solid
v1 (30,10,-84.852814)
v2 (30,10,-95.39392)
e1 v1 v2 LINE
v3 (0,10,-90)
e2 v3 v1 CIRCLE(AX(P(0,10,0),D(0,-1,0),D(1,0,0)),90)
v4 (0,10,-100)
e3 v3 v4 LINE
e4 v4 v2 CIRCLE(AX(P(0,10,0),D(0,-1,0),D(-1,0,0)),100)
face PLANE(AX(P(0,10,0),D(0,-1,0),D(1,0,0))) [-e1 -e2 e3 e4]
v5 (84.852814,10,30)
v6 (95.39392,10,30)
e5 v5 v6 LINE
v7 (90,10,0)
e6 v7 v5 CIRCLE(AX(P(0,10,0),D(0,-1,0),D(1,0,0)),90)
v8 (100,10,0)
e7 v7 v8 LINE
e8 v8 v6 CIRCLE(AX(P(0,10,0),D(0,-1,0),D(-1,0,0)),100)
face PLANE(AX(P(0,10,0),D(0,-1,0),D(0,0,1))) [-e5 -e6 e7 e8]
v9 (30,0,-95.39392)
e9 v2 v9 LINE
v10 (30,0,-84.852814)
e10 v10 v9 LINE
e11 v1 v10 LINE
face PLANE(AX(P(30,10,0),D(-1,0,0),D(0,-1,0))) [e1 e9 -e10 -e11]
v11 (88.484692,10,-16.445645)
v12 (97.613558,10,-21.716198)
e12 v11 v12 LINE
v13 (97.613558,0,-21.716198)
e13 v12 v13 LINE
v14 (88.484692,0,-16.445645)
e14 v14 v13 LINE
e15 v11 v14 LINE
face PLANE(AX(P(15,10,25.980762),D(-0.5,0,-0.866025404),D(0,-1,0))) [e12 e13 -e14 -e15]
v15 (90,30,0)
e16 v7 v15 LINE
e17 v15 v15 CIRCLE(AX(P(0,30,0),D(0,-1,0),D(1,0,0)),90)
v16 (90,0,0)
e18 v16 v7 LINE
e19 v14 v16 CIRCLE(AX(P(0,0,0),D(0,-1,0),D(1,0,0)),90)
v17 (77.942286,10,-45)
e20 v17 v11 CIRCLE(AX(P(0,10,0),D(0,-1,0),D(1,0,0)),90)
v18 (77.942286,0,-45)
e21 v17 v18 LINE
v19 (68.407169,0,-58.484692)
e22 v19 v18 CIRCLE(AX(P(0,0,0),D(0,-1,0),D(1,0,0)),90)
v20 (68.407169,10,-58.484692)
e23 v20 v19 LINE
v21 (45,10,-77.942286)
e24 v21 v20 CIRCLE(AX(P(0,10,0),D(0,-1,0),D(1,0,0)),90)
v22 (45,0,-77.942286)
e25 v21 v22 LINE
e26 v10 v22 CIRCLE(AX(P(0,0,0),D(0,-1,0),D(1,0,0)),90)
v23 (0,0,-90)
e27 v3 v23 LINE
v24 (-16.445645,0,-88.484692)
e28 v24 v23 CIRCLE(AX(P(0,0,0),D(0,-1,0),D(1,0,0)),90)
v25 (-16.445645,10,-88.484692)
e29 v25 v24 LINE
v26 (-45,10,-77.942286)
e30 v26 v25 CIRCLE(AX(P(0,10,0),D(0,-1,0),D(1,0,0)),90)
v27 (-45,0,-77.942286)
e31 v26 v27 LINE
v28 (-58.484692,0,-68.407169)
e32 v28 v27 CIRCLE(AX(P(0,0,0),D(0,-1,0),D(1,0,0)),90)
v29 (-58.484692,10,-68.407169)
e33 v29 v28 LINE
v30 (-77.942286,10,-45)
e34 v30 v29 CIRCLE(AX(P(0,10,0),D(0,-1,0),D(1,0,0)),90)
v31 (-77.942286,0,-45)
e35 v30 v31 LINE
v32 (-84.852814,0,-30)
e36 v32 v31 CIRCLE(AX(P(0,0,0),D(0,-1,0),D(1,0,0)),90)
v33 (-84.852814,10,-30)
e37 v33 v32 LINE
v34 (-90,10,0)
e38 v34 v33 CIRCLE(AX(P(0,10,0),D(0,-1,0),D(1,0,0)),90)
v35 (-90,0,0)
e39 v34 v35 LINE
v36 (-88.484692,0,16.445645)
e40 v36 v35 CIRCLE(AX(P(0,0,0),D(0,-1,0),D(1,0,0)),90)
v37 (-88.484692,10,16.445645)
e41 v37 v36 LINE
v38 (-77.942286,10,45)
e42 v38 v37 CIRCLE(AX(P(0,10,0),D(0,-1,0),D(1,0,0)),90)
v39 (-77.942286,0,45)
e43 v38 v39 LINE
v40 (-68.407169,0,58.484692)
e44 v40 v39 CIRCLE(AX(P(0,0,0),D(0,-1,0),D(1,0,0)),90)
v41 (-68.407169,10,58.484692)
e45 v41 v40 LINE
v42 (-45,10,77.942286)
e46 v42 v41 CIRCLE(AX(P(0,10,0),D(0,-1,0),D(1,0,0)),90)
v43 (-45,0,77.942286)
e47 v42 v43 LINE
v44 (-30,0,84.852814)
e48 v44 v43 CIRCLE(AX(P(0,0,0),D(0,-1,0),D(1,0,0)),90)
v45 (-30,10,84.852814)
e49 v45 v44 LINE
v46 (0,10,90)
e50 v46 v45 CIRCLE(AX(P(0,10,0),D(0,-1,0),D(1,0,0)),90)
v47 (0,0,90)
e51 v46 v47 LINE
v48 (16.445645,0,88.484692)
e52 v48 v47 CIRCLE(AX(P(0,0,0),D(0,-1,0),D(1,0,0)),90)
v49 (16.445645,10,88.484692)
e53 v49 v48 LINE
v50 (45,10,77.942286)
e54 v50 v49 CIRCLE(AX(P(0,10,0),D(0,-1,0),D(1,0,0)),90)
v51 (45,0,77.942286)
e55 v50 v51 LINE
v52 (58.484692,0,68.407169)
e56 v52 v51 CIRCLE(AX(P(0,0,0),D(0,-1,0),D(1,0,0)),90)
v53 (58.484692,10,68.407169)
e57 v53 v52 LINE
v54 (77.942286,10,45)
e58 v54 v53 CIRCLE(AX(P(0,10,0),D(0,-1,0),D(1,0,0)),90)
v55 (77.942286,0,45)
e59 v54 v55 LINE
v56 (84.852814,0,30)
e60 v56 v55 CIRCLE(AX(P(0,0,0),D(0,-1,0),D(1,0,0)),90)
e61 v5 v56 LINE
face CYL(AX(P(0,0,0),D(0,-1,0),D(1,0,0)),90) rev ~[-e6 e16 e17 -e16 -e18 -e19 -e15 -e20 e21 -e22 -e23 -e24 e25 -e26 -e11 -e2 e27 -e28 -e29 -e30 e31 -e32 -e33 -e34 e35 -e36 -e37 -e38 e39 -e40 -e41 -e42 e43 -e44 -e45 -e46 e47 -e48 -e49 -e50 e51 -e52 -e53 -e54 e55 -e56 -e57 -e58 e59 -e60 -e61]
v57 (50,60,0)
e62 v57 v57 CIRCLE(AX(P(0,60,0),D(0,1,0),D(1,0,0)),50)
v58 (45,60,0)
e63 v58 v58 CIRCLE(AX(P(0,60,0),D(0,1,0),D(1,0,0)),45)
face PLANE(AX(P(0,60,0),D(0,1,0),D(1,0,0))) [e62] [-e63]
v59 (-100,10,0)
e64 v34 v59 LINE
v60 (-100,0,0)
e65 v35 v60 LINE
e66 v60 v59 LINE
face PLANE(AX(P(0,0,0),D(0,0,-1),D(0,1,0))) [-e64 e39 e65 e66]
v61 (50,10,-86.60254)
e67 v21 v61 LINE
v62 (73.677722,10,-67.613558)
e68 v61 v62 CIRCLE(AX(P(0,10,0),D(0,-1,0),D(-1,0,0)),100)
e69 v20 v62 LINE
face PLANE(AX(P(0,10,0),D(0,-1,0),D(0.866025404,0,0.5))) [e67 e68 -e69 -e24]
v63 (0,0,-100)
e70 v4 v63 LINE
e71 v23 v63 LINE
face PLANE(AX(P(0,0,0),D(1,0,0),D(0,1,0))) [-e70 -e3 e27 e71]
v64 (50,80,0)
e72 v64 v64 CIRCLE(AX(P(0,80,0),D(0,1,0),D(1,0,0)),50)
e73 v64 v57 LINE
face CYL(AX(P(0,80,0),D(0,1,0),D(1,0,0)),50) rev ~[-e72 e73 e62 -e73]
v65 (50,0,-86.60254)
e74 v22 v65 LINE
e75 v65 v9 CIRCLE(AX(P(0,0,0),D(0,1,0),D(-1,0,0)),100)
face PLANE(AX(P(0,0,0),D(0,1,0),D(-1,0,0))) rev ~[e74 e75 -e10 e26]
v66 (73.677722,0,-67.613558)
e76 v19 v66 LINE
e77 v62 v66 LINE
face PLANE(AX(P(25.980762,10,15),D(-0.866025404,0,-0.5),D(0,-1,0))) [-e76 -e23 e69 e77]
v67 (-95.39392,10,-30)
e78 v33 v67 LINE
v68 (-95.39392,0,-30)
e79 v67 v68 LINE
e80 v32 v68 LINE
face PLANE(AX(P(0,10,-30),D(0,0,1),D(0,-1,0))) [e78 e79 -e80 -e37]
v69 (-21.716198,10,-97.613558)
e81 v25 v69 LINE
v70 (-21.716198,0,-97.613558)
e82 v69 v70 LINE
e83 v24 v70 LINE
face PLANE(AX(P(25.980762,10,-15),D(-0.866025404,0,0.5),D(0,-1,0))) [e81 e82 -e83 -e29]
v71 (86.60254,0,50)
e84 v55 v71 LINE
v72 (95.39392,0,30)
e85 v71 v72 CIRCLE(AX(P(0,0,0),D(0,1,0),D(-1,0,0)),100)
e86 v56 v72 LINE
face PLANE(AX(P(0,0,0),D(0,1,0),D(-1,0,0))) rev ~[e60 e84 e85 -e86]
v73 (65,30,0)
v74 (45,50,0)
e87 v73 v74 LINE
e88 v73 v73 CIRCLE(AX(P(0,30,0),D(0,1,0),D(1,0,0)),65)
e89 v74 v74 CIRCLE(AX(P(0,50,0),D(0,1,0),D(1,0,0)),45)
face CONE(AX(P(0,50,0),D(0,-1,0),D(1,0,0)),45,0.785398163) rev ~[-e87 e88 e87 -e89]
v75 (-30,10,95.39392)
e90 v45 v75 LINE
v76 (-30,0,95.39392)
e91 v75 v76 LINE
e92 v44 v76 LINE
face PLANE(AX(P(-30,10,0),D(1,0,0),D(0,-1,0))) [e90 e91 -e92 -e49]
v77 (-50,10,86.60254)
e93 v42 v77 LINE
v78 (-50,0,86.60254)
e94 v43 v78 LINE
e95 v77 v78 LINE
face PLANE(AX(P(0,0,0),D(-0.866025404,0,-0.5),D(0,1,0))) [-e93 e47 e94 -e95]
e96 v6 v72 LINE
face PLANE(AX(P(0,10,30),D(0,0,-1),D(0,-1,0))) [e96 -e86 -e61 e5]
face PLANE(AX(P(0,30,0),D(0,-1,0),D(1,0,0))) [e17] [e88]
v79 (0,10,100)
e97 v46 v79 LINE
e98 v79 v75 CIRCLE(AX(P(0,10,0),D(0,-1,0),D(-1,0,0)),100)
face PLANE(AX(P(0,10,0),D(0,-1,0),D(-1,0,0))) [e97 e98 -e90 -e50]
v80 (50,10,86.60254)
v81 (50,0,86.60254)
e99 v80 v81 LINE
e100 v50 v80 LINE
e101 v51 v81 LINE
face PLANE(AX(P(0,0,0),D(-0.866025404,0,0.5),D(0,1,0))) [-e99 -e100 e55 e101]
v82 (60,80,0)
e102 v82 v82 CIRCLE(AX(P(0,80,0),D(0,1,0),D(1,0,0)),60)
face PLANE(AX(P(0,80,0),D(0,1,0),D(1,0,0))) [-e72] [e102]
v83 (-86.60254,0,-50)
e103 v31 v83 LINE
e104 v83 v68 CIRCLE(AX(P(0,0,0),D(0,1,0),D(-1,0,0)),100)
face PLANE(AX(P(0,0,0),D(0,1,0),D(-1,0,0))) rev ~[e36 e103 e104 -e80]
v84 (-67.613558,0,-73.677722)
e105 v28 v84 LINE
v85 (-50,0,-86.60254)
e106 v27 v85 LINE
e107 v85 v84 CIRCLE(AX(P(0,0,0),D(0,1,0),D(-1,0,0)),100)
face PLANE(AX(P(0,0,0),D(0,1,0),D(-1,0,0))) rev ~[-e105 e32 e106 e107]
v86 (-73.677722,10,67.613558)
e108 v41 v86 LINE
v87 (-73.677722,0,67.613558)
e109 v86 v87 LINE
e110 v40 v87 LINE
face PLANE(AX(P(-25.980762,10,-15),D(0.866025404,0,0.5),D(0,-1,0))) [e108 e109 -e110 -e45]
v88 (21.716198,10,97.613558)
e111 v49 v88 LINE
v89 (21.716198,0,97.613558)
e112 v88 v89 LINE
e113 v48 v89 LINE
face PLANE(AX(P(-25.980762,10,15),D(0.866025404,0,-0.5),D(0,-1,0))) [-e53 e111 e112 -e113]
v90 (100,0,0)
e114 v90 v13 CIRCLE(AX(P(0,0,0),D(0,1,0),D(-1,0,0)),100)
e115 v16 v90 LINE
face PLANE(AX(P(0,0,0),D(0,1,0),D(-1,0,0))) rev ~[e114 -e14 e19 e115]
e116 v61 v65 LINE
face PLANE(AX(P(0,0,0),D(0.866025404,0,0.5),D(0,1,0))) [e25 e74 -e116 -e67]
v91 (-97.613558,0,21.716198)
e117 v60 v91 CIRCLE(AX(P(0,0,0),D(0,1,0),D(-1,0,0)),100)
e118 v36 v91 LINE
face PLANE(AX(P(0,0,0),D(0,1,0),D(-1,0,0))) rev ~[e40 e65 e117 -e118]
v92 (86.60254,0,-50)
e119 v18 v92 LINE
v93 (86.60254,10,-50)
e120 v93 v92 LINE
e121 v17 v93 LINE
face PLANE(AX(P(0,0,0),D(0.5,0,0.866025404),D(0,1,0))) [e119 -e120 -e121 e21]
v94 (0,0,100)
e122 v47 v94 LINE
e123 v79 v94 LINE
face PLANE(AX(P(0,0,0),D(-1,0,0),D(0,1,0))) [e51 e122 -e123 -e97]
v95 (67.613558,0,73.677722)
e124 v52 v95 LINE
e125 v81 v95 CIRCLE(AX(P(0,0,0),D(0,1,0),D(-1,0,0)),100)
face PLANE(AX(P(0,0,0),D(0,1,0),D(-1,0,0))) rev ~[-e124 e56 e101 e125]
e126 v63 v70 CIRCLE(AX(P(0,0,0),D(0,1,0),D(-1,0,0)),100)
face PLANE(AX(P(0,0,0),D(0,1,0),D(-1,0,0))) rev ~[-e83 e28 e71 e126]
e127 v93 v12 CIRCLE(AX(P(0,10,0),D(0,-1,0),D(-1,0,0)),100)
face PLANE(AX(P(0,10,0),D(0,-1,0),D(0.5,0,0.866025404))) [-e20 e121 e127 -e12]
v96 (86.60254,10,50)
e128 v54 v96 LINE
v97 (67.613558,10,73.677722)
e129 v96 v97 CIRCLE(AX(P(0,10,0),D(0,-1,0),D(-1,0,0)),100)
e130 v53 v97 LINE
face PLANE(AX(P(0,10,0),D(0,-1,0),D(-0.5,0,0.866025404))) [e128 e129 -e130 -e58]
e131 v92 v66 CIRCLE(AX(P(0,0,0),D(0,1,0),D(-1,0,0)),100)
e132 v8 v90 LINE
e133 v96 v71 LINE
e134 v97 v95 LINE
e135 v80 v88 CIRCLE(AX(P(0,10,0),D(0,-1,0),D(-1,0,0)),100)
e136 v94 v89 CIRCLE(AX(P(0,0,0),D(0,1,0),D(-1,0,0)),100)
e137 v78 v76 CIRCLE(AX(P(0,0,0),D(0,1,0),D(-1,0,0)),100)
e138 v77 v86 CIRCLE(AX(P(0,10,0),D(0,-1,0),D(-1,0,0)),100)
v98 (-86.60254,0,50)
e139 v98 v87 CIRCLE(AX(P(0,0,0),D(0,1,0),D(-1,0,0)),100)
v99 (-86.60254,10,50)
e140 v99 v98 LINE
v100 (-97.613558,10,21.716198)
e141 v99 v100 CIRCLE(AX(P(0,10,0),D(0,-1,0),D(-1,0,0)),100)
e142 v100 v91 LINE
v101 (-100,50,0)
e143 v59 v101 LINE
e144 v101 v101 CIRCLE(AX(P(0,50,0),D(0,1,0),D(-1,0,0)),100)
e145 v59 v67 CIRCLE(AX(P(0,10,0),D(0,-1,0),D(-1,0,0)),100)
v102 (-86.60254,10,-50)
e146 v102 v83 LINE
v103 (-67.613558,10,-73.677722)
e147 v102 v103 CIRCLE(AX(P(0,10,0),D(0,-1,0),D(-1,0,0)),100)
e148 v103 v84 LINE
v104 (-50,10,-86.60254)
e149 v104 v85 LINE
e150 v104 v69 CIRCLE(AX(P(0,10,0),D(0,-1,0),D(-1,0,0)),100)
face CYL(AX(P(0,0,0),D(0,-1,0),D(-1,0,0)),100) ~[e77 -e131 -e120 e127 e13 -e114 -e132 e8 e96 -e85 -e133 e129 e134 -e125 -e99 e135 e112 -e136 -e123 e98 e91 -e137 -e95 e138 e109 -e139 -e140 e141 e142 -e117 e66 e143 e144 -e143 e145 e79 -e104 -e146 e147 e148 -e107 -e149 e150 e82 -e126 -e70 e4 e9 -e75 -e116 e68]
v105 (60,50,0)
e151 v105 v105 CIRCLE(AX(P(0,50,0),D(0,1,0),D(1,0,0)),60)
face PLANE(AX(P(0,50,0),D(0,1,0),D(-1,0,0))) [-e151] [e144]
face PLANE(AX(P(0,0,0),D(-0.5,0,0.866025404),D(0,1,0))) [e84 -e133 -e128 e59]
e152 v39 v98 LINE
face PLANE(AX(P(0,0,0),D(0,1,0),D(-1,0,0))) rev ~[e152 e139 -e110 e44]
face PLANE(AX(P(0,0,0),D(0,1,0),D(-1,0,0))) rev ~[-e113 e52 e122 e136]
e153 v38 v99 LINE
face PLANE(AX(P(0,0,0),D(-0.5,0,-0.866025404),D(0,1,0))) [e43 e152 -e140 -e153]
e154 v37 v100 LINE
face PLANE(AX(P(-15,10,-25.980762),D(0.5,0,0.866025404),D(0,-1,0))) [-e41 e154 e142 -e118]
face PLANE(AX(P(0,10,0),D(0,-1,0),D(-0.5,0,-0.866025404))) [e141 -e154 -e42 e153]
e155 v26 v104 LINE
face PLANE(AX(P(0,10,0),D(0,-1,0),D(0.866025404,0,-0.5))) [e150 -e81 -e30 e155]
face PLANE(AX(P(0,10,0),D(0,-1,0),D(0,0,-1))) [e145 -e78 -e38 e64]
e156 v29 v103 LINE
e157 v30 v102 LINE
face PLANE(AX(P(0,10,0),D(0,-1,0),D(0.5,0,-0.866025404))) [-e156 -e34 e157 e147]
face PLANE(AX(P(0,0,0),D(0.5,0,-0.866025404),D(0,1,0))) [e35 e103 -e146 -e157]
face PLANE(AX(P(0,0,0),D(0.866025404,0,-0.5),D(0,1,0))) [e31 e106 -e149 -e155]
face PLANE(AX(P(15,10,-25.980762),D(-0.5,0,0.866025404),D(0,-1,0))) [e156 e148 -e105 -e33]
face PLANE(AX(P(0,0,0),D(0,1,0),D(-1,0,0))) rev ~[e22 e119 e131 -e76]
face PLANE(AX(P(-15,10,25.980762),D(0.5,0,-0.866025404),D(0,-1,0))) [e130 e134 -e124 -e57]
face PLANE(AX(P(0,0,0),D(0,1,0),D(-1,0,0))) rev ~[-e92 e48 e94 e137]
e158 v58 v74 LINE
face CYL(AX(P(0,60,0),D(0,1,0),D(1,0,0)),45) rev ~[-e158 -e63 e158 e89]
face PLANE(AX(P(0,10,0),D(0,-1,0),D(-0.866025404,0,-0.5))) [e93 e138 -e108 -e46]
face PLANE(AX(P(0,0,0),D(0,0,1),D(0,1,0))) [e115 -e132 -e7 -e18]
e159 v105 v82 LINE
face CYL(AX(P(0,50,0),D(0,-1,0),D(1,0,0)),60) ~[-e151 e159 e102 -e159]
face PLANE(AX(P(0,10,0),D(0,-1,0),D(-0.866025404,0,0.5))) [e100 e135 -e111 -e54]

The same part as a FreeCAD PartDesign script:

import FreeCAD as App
import Part
import Sketcher

V = App.Vector
Q = App.Units.Quantity


def edges_at(feature, points):
    """Names of the edges that pass closest to the given points."""
    edges = feature.Shape.Edges
    near = lambda p: min(range(len(edges)), key=lambda i: edges[i].distToShape(Part.Vertex(*p))[0])
    return sorted({f"Edge{near(p) + 1}" for p in points})

doc = App.newDocument("Part")
body = doc.addObject("PartDesign::Body", "Body")

# Sketch on XZ plane
sketch1 = body.newObject("Sketcher::SketchObject", "Sketch")
sketch1.AttachmentSupport = (doc.getObject("XZ_Plane"), [""])
sketch1.MapMode = "FlatFace"
sketch1.addGeometry(Part.Circle(V(0, 0, 0), V(0, 0, 1), 100), False)
sketch1.addConstraint([
    Sketcher.Constraint("Coincident", 0, 3, -1, 1),
    Sketcher.Constraint("Diameter", 0, Q("200 mm")),
])
pad1 = body.newObject("PartDesign::Pad", "Pad")
pad1.Profile = sketch1
pad1.Length = 50
pad1.Reversed = True

# Sketch on XZ plane
sketch2 = body.newObject("Sketcher::SketchObject", "Sketch001")
sketch2.AttachmentSupport = (doc.getObject("XZ_Plane"), [""])
sketch2.MapMode = "FlatFace"
sketch2.addGeometry(Part.Circle(V(0, 0, 0), V(0, 0, 1), 90), False)
sketch2.addConstraint([
    Sketcher.Constraint("Coincident", 0, 3, -1, 1),
    Sketcher.Constraint("Diameter", 0, Q("180 mm")),
])
pocket1 = body.newObject("PartDesign::Pocket", "Pocket")
pocket1.Profile = sketch2
pocket1.Length = 30

# Sketch on YZ plane
sketch3 = body.newObject("Sketcher::SketchObject", "Sketch002")
sketch3.AttachmentSupport = (doc.getObject("YZ_Plane"), [""])
sketch3.MapMode = "FlatFace"
sketch3.addGeometry([
    Part.LineSegment(V(10, 0, 0), V(0, 0, 0)),
    Part.LineSegment(V(0, 0, 0), V(0, -30, 0)),
    Part.LineSegment(V(0, -30, 0), V(10, -30, 0)),
    Part.LineSegment(V(10, -30, 0), V(10, 0, 0)),
], False)
sketch3.addConstraint([
    Sketcher.Constraint("Coincident", 0, 2, 1, 1),
    Sketcher.Constraint("Coincident", 1, 2, 2, 1),
    Sketcher.Constraint("Coincident", 2, 2, 3, 1),
    Sketcher.Constraint("Coincident", 3, 2, 0, 1),
    Sketcher.Constraint("Horizontal", 0),
    Sketcher.Constraint("Vertical", 1),
    Sketcher.Constraint("Horizontal", 2),
    Sketcher.Constraint("Vertical", 3),
    Sketcher.Constraint("Coincident", 0, 2, -1, 1),
    Sketcher.Constraint("DistanceX", 0, 2, 0, 1, Q("10 mm")),
    Sketcher.Constraint("DistanceY", 1, 2, 1, 1, Q("30 mm")),
])
pocket2 = body.newObject("PartDesign::Pocket", "Pocket001")
pocket2.Profile = sketch3
pocket2.Length = 400
doc.recompute()

polarpattern = body.newObject("PartDesign::PolarPattern", "PolarPattern")
polarpattern.Originals = [pocket2]
polarpattern.Axis = (doc.getObject("Y_Axis"), [""])
polarpattern.Angle = 360
polarpattern.Occurrences = 12
body.Tip = polarpattern

# Sketch on XZ plane
sketch4 = body.newObject("Sketcher::SketchObject", "Sketch003")
sketch4.AttachmentSupport = (doc.getObject("XZ_Plane"), [""])
sketch4.MapMode = "FlatFace"
sketch4.AttachmentOffset = App.Placement(V(0, 0, -50), App.Rotation())
sketch4.addGeometry(Part.Circle(V(0, 0, 0), V(0, 0, 1), 60), False)
sketch4.addConstraint([
    Sketcher.Constraint("Coincident", 0, 3, -1, 1),
    Sketcher.Constraint("Diameter", 0, Q("120 mm")),
])
pad2 = body.newObject("PartDesign::Pad", "Pad001")
pad2.Profile = sketch4
pad2.Length = 30
pad2.Reversed = True

# Sketch on XZ plane
sketch5 = body.newObject("Sketcher::SketchObject", "Sketch004")
sketch5.AttachmentSupport = (doc.getObject("XZ_Plane"), [""])
sketch5.MapMode = "FlatFace"
sketch5.AttachmentOffset = App.Placement(V(0, 0, -80), App.Rotation())
sketch5.addGeometry(Part.Circle(V(0, 0, 0), V(0, 0, 1), 50), False)
sketch5.addConstraint([
    Sketcher.Constraint("Coincident", 0, 3, -1, 1),
    Sketcher.Constraint("Diameter", 0, Q("100 mm")),
])
pocket3 = body.newObject("PartDesign::Pocket", "Pocket002")
pocket3.Profile = sketch5
pocket3.Length = 20
pocket3.Reversed = True

# Sketch on XZ plane
sketch6 = body.newObject("Sketcher::SketchObject", "Sketch005")
sketch6.AttachmentSupport = (doc.getObject("XZ_Plane"), [""])
sketch6.MapMode = "FlatFace"
sketch6.AttachmentOffset = App.Placement(V(0, 0, -60), App.Rotation())
sketch6.addGeometry(Part.Circle(V(0, 0, 0), V(0, 0, 1), 45), False)
sketch6.addConstraint([
    Sketcher.Constraint("Coincident", 0, 3, -1, 1),
    Sketcher.Constraint("Diameter", 0, Q("90 mm")),
])
pocket4 = body.newObject("PartDesign::Pocket", "Pocket003")
pocket4.Profile = sketch6
pocket4.Length = 50
pocket4.Reversed = True
doc.recompute()

chamfer = body.newObject("PartDesign::Chamfer", "Chamfer")
chamfer.Base = (pocket4, edges_at(pocket4, [(-45, 30, 0)]))
chamfer.Size = 20

doc.recompute()
